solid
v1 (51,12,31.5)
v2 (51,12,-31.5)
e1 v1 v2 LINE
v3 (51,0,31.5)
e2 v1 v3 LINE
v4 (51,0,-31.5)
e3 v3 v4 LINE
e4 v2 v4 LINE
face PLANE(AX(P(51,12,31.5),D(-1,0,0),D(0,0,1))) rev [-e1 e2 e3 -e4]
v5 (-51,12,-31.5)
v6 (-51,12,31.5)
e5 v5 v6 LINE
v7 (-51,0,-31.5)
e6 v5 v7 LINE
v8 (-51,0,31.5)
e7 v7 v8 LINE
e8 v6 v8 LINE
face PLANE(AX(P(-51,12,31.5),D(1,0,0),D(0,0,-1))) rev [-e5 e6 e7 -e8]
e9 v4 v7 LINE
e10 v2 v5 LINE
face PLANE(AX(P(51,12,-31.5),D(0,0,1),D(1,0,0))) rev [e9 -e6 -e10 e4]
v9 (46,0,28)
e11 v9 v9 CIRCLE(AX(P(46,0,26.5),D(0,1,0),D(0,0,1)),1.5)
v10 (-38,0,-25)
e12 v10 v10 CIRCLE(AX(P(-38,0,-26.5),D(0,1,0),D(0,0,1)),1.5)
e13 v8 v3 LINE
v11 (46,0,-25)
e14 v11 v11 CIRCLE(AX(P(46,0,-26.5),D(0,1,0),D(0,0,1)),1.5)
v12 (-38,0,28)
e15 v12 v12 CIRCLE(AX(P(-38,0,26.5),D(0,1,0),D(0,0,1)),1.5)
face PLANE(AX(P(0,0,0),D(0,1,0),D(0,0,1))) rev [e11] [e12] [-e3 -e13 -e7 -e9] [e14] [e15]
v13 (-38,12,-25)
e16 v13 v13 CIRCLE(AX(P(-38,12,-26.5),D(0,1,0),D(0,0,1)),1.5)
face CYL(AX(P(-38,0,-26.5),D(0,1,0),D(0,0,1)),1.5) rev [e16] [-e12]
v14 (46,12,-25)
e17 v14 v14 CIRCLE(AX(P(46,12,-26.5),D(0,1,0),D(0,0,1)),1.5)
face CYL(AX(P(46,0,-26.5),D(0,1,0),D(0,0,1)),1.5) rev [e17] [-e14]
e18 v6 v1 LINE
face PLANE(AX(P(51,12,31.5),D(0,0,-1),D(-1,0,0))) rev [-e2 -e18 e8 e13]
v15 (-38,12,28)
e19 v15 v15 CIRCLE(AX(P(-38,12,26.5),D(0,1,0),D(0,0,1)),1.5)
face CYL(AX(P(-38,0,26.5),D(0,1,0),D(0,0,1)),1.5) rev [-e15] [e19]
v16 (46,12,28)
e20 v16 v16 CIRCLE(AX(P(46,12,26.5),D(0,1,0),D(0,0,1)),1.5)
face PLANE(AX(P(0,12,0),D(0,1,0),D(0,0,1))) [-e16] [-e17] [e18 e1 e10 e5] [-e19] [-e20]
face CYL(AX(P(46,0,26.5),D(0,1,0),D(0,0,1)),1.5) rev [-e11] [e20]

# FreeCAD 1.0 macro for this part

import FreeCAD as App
import Part
import Sketcher


def add_polygon(sketch, points):
    """Adds a closed chain of lines whose ends are joined by coincident constraints."""
    first, n = sketch.GeometryCount, len(points)
    for a, b in zip(points, points[1:] + points[:1]):
        sketch.addGeometry(Part.LineSegment(App.Vector(*a, 0), App.Vector(*b, 0)), False)
    for i in range(n):
        sketch.addConstraint(Sketcher.Constraint("Coincident", first + i, 2, first + (i + 1) % n, 1))

doc = App.newDocument("Part")
body = doc.addObject("PartDesign::Body", "Body")

# Sketch on XZ plane
sketch1 = doc.addObject("Sketcher::SketchObject", "Sketch")
body.addObject(sketch1)
sketch1.AttachmentSupport = (doc.XZ_Plane, [""])
sketch1.MapMode = "FlatFace"
add_polygon(sketch1, [(-51, -32), (-51, 32), (51, 32), (51, -32)])  # lines 0-3
sketch1.addConstraint([
    Sketcher.Constraint("Vertical", 0),
    Sketcher.Constraint("Horizontal", 1),
    Sketcher.Constraint("Vertical", 2),
    Sketcher.Constraint("Horizontal", 3),
    Sketcher.Constraint("Symmetric", 0, 2, 2, 2, -1, 1),
    Sketcher.Constraint("DistanceX", 1, 1, 1, 2, 102.0),
    Sketcher.Constraint("DistanceY", 0, 1, 0, 2, 63.0),
])
pad1 = doc.addObject("PartDesign::Pad", "Pad")
body.addObject(pad1)
pad1.Profile = sketch1
pad1.Length = 12
pad1.Reversed = True

# Sketch on XZ plane
sketch2 = doc.addObject("Sketcher::SketchObject", "Sketch001")
body.addObject(sketch2)
sketch2.AttachmentSupport = (doc.XZ_Plane, [""])
sketch2.MapMode = "FlatFace"
sketch2.AttachmentOffset = App.Placement(App.Vector(0, 0, -12), App.Rotation())
sketch2.addGeometry([
    Part.Circle(App.Vector(-38, -26.5, 0), App.Vector(0, 0, 1), 1.5),
    Part.Circle(App.Vector(46, -26.5, 0), App.Vector(0, 0, 1), 1.5),
    Part.Circle(App.Vector(46, 26.5, 0), App.Vector(0, 0, 1), 1.5),
    Part.Circle(App.Vector(-38, 26.5, 0), App.Vector(0, 0, 1), 1.5),
], False)
sketch2.addConstraint([
    Sketcher.Constraint("Equal", 0, 1),
    Sketcher.Constraint("Equal", 1, 2),
    Sketcher.Constraint("Equal", 2, 3),
    Sketcher.Constraint("Symmetric", 1, 3, 2, 3, -1),
    Sketcher.Constraint("Symmetric", 0, 3, 3, 3, -1),
    Sketcher.Constraint("Horizontal", 0, 3, 1, 3),
    Sketcher.Constraint("Diameter", 0, 3.0),
    Sketcher.Constraint("DistanceX", 0, 3, -1, 1, 38.0),
    Sketcher.Constraint("DistanceX", -1, 1, 1, 3, 46.0),
    Sketcher.Constraint("DistanceY", 1, 3, 2, 3, 53.0),
])
pocket1 = doc.addObject("PartDesign::Pocket", "Pocket")
body.addObject(pocket1)
pocket1.Profile = sketch2
pocket1.Type = "ThroughAll"
pocket1.Reversed = True

doc.recompute()
